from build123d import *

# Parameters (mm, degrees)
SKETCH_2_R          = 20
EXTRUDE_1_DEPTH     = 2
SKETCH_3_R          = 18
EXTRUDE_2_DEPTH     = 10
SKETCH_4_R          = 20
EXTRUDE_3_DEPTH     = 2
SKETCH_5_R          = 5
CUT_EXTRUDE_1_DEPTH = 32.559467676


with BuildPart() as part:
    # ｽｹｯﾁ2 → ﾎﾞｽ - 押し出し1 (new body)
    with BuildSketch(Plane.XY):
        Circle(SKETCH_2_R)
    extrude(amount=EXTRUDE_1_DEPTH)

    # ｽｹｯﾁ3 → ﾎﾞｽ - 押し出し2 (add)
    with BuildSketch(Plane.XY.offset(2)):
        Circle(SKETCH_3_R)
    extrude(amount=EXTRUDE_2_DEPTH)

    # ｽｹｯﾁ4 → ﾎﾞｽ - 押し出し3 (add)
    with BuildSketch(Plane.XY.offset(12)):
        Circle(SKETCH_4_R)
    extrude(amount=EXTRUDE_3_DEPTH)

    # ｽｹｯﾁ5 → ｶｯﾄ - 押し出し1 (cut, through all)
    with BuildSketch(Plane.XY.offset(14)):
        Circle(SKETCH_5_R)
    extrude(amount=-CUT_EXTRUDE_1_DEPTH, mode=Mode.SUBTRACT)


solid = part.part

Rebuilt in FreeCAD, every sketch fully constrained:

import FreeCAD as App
import Part
import Sketcher

V = App.Vector

doc = App.newDocument("Part")
body = doc.addObject("PartDesign::Body", "Body")

# Sketch on XY plane
sketch1 = doc.addObject("Sketcher::SketchObject", "Sketch")
body.addObject(sketch1)
sketch1.AttachmentSupport = (doc.XY_Plane, [""])
sketch1.MapMode = "FlatFace"
sketch1.addGeometry(Part.Circle(V(0, 0, 0), V(0, 0, 1), 20), False)
sketch1.addConstraint([
    Sketcher.Constraint("Coincident", 0, 3, -1, 1),
    Sketcher.Constraint("Diameter", 0, 40.0),
])
pad1 = doc.addObject("PartDesign::Pad", "Pad")
body.addObject(pad1)
pad1.Profile = sketch1
pad1.Length = 2

# Sketch on XY plane
sketch2 = doc.addObject("Sketcher::SketchObject", "Sketch001")
body.addObject(sketch2)
sketch2.AttachmentSupport = (doc.XY_Plane, [""])
sketch2.MapMode = "FlatFace"
sketch2.AttachmentOffset = App.Placement(V(0, 0, 2), App.Rotation())
sketch2.addGeometry(Part.Circle(V(0, 0, 0), V(0, 0, 1), 18), False)
sketch2.addConstraint([
    Sketcher.Constraint("Coincident", 0, 3, -1, 1),
    Sketcher.Constraint("Diameter", 0, 36.0),
])
pad2 = doc.addObject("PartDesign::Pad", "Pad001")
body.addObject(pad2)
pad2.Profile = sketch2
pad2.Length = 10

# Sketch on XY plane
sketch3 = doc.addObject("Sketcher::SketchObject", "Sketch002")
body.addObject(sketch3)
sketch3.AttachmentSupport = (doc.XY_Plane, [""])
sketch3.MapMode = "FlatFace"
sketch3.AttachmentOffset = App.Placement(V(0, 0, 12), App.Rotation())
sketch3.addGeometry(Part.Circle(V(0, 0, 0), V(0, 0, 1), 20), False)
sketch3.addConstraint([
    Sketcher.Constraint("Coincident", 0, 3, -1, 1),
    Sketcher.Constraint("Diameter", 0, 40.0),
])
pad3 = doc.addObject("PartDesign::Pad", "Pad002")
body.addObject(pad3)
pad3.Profile = sketch3
pad3.Length = 2

# Sketch on XY plane
sketch4 = doc.addObject("Sketcher::SketchObject", "Sketch003")
body.addObject(sketch4)
sketch4.AttachmentSupport = (doc.XY_Plane, [""])
sketch4.MapMode = "FlatFace"
sketch4.AttachmentOffset = App.Placement(V(0, 0, 14), App.Rotation())
sketch4.addGeometry(Part.Circle(V(0, 0, 0), V(0, 0, 1), 5), False)
sketch4.addConstraint([
    Sketcher.Constraint("Coincident", 0, 3, -1, 1),
    Sketcher.Constraint("Diameter", 0, 10.0),
])
pocket1 = doc.addObject("PartDesign::Pocket", "Pocket")
body.addObject(pocket1)
pocket1.Profile = sketch4
pocket1.Type = "ThroughAll"

doc.recompute()
